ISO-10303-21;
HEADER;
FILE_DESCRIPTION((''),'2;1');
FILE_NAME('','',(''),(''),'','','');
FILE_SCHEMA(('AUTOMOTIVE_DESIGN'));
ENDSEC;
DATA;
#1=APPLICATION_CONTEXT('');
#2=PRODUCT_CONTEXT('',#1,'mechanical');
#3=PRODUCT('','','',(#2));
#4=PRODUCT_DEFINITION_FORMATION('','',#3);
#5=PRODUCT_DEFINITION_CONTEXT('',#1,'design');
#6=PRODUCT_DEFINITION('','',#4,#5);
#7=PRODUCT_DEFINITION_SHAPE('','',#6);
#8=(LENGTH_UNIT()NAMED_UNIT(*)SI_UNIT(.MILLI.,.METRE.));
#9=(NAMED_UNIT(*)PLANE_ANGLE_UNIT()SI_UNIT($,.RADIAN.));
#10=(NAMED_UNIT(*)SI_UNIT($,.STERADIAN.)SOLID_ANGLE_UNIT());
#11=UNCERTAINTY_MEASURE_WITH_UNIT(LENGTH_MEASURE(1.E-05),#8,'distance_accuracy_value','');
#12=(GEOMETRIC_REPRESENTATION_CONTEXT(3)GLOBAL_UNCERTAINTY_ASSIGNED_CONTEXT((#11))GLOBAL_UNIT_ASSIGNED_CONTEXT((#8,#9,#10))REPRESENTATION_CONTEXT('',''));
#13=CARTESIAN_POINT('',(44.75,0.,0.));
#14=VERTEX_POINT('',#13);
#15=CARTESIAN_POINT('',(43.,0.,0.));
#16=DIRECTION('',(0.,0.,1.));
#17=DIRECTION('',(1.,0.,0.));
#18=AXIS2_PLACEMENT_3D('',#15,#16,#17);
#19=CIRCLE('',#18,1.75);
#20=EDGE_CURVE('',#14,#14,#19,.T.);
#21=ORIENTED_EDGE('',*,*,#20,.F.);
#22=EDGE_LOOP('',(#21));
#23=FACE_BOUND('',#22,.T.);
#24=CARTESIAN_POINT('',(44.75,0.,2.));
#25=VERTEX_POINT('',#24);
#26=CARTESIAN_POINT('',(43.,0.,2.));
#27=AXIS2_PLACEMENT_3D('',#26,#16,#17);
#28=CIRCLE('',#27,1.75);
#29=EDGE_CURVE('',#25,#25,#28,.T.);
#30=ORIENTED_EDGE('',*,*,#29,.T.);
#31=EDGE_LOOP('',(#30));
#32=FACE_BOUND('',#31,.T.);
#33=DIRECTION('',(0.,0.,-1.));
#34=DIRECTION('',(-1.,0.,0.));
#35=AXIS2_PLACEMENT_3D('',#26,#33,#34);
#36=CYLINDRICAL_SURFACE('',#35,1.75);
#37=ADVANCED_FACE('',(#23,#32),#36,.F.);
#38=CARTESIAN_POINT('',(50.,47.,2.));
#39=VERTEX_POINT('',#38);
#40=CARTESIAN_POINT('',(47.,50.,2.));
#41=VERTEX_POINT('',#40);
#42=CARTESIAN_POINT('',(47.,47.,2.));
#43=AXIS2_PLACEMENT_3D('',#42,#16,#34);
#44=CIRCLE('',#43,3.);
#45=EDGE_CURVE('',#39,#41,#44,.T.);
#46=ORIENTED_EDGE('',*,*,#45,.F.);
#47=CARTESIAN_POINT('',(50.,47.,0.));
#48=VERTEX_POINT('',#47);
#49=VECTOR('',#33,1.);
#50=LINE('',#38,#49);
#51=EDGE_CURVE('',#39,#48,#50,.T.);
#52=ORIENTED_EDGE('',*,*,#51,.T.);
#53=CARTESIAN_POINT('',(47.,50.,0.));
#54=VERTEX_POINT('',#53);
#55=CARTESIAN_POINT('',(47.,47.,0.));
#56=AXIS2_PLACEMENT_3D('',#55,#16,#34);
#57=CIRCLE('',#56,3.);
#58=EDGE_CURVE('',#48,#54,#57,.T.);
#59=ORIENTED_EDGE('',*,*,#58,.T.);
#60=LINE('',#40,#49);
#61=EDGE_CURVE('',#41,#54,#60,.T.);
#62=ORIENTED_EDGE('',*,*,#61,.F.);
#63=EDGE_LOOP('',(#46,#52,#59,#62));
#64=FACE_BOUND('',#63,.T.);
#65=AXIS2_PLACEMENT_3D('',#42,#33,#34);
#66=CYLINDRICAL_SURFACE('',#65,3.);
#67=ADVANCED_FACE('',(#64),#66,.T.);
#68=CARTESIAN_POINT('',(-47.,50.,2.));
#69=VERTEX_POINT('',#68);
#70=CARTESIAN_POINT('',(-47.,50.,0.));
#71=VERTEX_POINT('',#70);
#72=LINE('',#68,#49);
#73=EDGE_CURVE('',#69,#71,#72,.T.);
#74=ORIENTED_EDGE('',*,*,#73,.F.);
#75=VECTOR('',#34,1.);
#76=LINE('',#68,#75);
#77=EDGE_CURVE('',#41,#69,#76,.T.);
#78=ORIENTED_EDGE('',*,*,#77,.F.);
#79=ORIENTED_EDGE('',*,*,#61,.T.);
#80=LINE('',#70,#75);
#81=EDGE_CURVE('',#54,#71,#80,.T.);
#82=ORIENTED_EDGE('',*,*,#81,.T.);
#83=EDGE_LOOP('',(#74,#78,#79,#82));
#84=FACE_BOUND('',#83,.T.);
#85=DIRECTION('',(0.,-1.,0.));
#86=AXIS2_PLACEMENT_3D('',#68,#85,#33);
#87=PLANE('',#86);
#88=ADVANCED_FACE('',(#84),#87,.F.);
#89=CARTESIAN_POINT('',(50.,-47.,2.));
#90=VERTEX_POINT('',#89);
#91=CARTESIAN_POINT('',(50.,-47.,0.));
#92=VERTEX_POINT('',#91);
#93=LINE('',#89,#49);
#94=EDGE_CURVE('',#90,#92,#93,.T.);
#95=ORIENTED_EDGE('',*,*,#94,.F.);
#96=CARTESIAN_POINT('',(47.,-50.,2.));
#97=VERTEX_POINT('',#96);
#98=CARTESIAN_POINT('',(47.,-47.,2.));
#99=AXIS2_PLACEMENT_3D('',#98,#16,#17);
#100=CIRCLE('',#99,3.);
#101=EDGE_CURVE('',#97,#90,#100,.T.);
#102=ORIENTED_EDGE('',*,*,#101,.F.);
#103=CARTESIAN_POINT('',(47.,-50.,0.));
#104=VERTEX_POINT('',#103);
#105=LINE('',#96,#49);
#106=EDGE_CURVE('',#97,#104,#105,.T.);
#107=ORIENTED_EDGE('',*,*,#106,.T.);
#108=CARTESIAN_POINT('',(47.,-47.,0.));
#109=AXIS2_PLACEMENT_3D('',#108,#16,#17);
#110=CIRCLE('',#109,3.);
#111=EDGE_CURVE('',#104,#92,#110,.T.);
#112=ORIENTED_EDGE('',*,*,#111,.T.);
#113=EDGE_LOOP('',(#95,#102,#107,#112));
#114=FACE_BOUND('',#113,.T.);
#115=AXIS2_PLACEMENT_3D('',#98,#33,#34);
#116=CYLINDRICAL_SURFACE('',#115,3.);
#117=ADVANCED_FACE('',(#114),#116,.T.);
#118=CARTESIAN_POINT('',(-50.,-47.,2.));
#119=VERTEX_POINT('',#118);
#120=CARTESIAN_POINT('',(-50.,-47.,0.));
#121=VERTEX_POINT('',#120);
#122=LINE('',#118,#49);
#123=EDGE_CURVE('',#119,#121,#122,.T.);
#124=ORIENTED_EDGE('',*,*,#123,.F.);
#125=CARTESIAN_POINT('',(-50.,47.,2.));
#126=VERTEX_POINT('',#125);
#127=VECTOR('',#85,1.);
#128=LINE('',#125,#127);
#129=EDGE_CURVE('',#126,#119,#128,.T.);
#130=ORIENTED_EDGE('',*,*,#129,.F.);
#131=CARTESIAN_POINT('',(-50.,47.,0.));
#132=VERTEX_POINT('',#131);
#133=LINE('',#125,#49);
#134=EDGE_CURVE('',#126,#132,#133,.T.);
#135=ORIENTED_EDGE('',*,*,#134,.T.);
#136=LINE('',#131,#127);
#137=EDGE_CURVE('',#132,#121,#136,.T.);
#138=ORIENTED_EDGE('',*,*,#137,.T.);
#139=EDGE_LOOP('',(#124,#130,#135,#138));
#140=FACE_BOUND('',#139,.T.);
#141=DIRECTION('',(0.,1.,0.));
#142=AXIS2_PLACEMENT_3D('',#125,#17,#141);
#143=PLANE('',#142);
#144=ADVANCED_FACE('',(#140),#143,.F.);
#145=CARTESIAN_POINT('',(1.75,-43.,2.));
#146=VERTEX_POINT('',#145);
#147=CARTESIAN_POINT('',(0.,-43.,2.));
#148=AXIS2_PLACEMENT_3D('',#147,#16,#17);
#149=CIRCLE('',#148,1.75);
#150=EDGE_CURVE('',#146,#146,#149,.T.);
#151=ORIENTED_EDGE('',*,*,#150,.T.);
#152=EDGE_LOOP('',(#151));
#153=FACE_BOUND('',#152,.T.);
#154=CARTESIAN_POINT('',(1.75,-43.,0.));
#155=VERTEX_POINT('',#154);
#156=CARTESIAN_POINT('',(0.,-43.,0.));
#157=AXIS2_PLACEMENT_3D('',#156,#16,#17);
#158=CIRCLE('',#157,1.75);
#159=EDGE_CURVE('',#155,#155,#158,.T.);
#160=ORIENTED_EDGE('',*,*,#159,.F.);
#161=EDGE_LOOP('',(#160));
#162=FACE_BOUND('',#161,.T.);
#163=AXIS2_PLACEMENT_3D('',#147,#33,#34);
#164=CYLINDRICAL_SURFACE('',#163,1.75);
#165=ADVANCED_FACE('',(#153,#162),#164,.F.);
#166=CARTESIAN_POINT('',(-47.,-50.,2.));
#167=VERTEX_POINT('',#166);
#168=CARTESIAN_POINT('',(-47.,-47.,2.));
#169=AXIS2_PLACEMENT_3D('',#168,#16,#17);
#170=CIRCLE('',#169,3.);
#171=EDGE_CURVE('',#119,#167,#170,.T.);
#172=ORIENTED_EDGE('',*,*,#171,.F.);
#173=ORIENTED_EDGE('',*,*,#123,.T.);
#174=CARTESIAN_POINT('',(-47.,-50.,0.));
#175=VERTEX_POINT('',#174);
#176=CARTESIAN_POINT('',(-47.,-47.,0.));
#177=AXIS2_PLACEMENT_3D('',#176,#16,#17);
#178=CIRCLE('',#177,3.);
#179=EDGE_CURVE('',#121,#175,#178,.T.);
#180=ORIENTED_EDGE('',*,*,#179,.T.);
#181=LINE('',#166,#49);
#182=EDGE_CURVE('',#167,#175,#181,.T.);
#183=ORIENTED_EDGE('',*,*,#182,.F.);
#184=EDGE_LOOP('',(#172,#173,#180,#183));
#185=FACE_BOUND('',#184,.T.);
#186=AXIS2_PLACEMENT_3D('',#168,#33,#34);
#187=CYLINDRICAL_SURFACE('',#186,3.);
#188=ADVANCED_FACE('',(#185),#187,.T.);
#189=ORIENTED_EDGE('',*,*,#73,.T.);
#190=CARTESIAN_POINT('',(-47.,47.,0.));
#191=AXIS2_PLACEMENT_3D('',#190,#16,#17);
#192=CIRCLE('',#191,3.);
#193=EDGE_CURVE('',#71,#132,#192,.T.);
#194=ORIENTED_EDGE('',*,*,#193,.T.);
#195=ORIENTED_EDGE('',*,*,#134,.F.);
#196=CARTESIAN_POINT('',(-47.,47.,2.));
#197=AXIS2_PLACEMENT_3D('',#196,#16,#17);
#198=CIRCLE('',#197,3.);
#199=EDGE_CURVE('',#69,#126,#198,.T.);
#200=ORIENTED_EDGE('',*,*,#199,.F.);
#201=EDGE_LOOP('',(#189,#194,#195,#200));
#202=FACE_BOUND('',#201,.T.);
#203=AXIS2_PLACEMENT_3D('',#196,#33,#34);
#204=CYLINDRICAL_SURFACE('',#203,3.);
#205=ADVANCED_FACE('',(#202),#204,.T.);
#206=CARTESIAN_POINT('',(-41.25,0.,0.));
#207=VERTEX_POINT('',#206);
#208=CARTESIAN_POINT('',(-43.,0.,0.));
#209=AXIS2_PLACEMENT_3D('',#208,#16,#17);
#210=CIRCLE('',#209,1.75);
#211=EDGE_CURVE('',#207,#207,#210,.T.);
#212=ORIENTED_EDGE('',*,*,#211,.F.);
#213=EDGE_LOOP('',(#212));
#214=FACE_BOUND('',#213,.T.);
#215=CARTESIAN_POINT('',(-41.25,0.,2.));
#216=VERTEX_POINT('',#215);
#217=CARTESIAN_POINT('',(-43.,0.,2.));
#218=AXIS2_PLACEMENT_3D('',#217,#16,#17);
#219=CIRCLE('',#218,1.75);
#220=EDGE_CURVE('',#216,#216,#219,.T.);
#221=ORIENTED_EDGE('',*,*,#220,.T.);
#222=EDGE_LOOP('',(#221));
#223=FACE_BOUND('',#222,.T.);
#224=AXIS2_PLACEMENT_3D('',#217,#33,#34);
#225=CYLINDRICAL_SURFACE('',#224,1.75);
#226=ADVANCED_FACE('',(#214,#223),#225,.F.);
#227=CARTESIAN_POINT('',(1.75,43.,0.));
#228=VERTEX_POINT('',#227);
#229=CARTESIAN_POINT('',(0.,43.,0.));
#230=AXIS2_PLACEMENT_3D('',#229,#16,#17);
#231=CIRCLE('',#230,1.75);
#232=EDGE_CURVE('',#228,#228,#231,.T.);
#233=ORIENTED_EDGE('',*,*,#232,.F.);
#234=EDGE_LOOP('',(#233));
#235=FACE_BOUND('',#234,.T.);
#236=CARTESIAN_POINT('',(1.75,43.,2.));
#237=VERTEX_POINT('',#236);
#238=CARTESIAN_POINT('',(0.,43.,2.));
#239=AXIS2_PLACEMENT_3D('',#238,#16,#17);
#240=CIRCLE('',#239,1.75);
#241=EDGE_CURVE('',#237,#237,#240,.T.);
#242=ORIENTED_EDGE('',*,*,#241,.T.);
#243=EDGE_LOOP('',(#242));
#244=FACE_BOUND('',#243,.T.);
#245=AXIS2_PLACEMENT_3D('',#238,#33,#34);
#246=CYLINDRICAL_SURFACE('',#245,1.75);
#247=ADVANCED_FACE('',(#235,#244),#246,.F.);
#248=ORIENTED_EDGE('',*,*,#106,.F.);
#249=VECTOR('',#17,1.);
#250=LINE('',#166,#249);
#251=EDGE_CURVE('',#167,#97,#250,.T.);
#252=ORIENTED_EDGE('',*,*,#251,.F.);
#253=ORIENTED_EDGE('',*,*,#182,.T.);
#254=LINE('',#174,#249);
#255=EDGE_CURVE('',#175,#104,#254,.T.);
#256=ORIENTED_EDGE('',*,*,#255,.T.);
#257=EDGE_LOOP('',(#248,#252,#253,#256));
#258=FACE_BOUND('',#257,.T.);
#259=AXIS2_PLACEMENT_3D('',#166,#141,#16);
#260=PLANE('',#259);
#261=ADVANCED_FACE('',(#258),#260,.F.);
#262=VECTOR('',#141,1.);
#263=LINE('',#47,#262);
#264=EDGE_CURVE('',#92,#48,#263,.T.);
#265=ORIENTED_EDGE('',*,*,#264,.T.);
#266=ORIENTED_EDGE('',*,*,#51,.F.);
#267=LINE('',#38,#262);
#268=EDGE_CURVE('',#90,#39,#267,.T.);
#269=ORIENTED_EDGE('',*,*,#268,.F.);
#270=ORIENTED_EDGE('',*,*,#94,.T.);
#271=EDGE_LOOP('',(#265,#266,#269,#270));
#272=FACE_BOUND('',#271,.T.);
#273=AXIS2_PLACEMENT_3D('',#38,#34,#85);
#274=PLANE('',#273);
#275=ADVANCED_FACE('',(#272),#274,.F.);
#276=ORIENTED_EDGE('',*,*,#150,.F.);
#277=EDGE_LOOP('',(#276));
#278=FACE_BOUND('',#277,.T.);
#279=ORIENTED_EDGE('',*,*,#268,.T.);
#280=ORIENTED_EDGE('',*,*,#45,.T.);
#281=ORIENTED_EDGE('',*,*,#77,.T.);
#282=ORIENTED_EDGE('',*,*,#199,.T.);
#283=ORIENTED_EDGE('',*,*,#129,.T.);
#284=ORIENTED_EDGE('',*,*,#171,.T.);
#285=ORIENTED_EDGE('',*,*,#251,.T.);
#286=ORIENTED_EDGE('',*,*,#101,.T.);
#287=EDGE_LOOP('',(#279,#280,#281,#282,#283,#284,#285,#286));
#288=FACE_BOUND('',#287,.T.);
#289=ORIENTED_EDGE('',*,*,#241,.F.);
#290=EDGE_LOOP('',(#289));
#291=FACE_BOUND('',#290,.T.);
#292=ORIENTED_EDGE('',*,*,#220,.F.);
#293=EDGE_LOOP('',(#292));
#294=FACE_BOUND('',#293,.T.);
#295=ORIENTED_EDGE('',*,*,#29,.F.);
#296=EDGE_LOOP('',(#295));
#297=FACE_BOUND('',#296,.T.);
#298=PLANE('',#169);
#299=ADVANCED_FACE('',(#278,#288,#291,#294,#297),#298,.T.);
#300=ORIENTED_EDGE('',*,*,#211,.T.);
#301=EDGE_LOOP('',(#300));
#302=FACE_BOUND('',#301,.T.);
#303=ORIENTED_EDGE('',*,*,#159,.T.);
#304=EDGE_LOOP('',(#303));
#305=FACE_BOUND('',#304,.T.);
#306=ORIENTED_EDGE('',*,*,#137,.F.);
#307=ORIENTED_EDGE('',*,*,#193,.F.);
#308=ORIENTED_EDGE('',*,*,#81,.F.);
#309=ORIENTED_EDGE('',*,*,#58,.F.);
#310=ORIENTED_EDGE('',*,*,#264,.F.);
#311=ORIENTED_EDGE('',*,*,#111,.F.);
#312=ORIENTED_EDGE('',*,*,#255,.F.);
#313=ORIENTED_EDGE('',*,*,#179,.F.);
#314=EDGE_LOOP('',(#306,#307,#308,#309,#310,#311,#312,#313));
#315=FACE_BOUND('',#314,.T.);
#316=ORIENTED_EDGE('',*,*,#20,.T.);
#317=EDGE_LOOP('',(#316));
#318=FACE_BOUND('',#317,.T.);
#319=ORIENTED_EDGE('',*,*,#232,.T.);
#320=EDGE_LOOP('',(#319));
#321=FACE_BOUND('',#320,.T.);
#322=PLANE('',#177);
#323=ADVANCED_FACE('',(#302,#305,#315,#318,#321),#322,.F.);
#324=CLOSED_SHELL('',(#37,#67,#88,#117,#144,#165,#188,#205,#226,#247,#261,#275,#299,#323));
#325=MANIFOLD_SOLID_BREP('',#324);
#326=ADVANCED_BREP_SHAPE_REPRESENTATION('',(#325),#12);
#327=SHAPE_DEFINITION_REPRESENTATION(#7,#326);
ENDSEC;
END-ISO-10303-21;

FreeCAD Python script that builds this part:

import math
import FreeCAD as App
import Part
import Sketcher
from FreeCAD import Vector
Q = App.Units.Quantity

doc = App.newDocument("Part")
body = doc.addObject("PartDesign::Body", "Body")

# Sketch on XY plane
sketch1 = body.newObject("Sketcher::SketchObject", "Sketch")
sketch1.AttachmentSupport = (doc.getObject("XY_Plane"), [""])
sketch1.MapMode = "FlatFace"
sketch1.addGeometry([
    Part.LineSegment(Vector(47, 50, 0), Vector(-47, 50, 0)),  # 0
    Part.ArcOfCircle(Part.Circle(Vector(-47, 47, 0), Vector(0, 0, 1), 3), math.radians(90), math.radians(180)),  # 1
    Part.LineSegment(Vector(-50, 47, 0), Vector(-50, -47, 0)),  # 2
    Part.ArcOfCircle(Part.Circle(Vector(-47, -47, 0), Vector(0, 0, 1), 3), math.radians(180), math.radians(270)),  # 3
    Part.LineSegment(Vector(-47, -50, 0), Vector(47, -50, 0)),  # 4
    Part.ArcOfCircle(Part.Circle(Vector(47, -47, 0), Vector(0, 0, 1), 3), math.radians(-90), math.radians(0)),  # 5
    Part.LineSegment(Vector(50, -47, 0), Vector(50, 47, 0)),  # 6
    Part.ArcOfCircle(Part.Circle(Vector(47, 47, 0), Vector(0, 0, 1), 3), math.radians(0), math.radians(90)),  # 7
    Part.Circle(Vector(0, -43, 0), Vector(0, 0, 1), 1.8),  # 8
    Part.Circle(Vector(43, 0, 0), Vector(0, 0, 1), 1.8),  # 9
    Part.Circle(Vector(-43, 0, 0), Vector(0, 0, 1), 1.8),  # 10
    Part.Circle(Vector(0, 43, 0), Vector(0, 0, 1), 1.8),  # 11
], False)
sketch1.addConstraint([
    Sketcher.Constraint("Tangent", 0, 2, 1, 1),
    Sketcher.Constraint("Tangent", 1, 2, 2, 1),
    Sketcher.Constraint("Tangent", 2, 2, 3, 1),
    Sketcher.Constraint("Tangent", 3, 2, 4, 1),
    Sketcher.Constraint("Tangent", 4, 2, 5, 1),
    Sketcher.Constraint("Tangent", 5, 2, 6, 1),
    Sketcher.Constraint("Tangent", 6, 2, 7, 1),
    Sketcher.Constraint("Tangent", 7, 2, 0, 1),
    Sketcher.Constraint("Horizontal", 0),
    Sketcher.Constraint("Vertical", 2),
    Sketcher.Constraint("Horizontal", 4),
    Sketcher.Constraint("Vertical", 6),
    Sketcher.Constraint("Equal", 1, 3),
    Sketcher.Constraint("Equal", 3, 5),
    Sketcher.Constraint("Equal", 5, 7),
    Sketcher.Constraint("Equal", 8, 9),
    Sketcher.Constraint("Equal", 9, 10),
    Sketcher.Constraint("Equal", 10, 11),
    Sketcher.Constraint("Symmetric", 1, 3, 5, 3, -1, 1),
    Sketcher.Constraint("Symmetric", 9, 3, 10, 3, -1, 1),
    Sketcher.Constraint("Symmetric", 8, 3, 11, 3, -1, 1),
    Sketcher.Constraint("PointOnObject", 8, 3, -2),
    Sketcher.Constraint("PointOnObject", 9, 3, -1),
    Sketcher.Constraint("Equal", 4, 2),
    Sketcher.Constraint("Radius", 1, Q("3 mm")),
    Sketcher.Constraint("Diameter", 8, Q("3.5 mm")),
    Sketcher.Constraint("DistanceX", 0, 2, 0, 1, Q("94 mm")),
    Sketcher.Constraint("DistanceY", 8, 3, -1, 1, Q("43 mm")),
    Sketcher.Constraint("DistanceX", -1, 1, 9, 3, Q("43 mm")),
])
pad1 = body.newObject("PartDesign::Pad", "Pad")
pad1.Profile = sketch1
pad1.Length = 2

doc.recompute()
